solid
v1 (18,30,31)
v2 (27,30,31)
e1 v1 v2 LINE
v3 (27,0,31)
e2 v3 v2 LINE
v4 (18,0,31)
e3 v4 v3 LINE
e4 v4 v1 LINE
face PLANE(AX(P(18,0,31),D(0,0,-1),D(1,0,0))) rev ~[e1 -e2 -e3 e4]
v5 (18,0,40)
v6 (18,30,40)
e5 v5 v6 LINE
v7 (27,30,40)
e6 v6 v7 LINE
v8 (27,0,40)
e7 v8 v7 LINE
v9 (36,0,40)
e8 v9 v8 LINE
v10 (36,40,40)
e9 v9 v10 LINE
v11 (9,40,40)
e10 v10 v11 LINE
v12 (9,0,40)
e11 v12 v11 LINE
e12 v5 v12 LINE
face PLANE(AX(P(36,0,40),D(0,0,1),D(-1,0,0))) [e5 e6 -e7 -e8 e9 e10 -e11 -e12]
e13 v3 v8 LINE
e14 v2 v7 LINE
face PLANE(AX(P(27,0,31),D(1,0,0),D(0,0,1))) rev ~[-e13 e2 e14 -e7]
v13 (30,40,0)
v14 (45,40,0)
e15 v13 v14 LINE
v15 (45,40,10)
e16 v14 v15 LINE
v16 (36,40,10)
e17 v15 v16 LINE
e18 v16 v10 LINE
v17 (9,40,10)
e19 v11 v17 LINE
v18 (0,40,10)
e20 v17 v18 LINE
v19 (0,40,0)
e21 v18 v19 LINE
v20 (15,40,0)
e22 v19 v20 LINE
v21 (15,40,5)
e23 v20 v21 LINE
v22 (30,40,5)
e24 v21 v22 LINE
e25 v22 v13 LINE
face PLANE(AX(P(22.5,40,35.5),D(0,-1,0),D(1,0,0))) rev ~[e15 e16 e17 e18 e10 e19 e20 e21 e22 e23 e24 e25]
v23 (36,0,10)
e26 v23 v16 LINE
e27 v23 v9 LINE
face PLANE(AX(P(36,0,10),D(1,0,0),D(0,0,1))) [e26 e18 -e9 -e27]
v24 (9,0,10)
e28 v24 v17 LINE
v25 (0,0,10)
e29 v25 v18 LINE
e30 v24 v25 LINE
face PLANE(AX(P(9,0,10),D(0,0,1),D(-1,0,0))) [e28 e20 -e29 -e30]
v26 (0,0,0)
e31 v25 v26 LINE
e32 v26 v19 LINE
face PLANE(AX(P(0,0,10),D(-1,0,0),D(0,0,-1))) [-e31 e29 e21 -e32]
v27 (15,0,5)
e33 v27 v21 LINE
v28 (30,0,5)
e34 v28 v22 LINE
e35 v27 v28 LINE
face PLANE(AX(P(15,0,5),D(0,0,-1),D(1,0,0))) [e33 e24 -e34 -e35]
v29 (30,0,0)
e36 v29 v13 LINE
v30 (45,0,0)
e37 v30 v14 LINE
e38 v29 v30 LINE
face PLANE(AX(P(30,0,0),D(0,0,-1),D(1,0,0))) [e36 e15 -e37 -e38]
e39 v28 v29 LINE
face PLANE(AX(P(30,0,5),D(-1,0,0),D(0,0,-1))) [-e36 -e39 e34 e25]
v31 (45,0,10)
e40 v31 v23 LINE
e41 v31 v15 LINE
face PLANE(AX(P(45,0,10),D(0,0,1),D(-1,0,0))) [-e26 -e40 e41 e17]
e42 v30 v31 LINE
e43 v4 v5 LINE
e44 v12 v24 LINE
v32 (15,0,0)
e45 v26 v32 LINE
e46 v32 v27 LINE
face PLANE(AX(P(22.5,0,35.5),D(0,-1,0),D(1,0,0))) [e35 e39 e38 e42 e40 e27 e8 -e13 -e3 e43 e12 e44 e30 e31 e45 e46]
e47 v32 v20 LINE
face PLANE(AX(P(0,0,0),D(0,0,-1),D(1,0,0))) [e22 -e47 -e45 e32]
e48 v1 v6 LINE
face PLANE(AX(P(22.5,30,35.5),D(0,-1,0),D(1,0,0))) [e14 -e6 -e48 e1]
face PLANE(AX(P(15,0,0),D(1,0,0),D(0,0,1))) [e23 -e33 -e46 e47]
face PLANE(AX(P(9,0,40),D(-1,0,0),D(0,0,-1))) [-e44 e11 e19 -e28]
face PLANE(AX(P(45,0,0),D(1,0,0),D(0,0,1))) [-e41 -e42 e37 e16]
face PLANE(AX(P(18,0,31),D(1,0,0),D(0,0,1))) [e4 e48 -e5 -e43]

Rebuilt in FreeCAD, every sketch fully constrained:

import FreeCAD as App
import Part
import Sketcher

V = App.Vector
Q = App.Units.Quantity

doc = App.newDocument("Part")
body = doc.addObject("PartDesign::Body", "Body")

# Sketch on XZ plane
sketch1 = body.newObject("Sketcher::SketchObject", "Sketch")
sketch1.AttachmentSupport = (doc.getObject("XZ_Plane"), [""])
sketch1.MapMode = "FlatFace"
sketch1.addGeometry([
    Part.LineSegment(V(9, 40, 0), V(9, 10, 0)),  # 0
    Part.LineSegment(V(9, 10, 0), V(0, 10, 0)),  # 1
    Part.LineSegment(V(0, 10, 0), V(0, 0, 0)),  # 2
    Part.LineSegment(V(0, 0, 0), V(15, 0, 0)),  # 3
    Part.LineSegment(V(15, 0, 0), V(15, 5, 0)),  # 4
    Part.LineSegment(V(15, 5, 0), V(30, 5, 0)),  # 5
    Part.LineSegment(V(30, 5, 0), V(30, 0, 0)),  # 6
    Part.LineSegment(V(30, 0, 0), V(45, 0, 0)),  # 7
    Part.LineSegment(V(45, 0, 0), V(45, 10, 0)),  # 8
    Part.LineSegment(V(45, 10, 0), V(36, 10, 0)),  # 9
    Part.LineSegment(V(36, 10, 0), V(36, 40, 0)),  # 10
    Part.LineSegment(V(36, 40, 0), V(9, 40, 0)),  # 11
], False)
sketch1.addConstraint([
    Sketcher.Constraint("Coincident", 0, 2, 1, 1),
    Sketcher.Constraint("Coincident", 1, 2, 2, 1),
    Sketcher.Constraint("Coincident", 2, 2, 3, 1),
    Sketcher.Constraint("Coincident", 3, 2, 4, 1),
    Sketcher.Constraint("Coincident", 4, 2, 5, 1),
    Sketcher.Constraint("Coincident", 5, 2, 6, 1),
    Sketcher.Constraint("Coincident", 6, 2, 7, 1),
    Sketcher.Constraint("Coincident", 7, 2, 8, 1),
    Sketcher.Constraint("Coincident", 8, 2, 9, 1),
    Sketcher.Constraint("Coincident", 9, 2, 10, 1),
    Sketcher.Constraint("Coincident", 10, 2, 11, 1),
    Sketcher.Constraint("Coincident", 11, 2, 0, 1),
    Sketcher.Constraint("Vertical", 0),
    Sketcher.Constraint("Horizontal", 1),
    Sketcher.Constraint("Vertical", 2),
    Sketcher.Constraint("Horizontal", 3),
    Sketcher.Constraint("Vertical", 4),
    Sketcher.Constraint("Horizontal", 5),
    Sketcher.Constraint("Vertical", 6),
    Sketcher.Constraint("Horizontal", 7),
    Sketcher.Constraint("Vertical", 8),
    Sketcher.Constraint("Horizontal", 9),
    Sketcher.Constraint("Vertical", 10),
    Sketcher.Constraint("Horizontal", 11),
    Sketcher.Constraint("Coincident", 2, 2, -1, 1),
    Sketcher.Constraint("PointOnObject", 6, 2, -1),
    Sketcher.Constraint("Horizontal", 1, 2, 8, 2),
    Sketcher.Constraint("Equal", 3, 5),
    Sketcher.Constraint("Equal", 5, 7),
    Sketcher.Constraint("Equal", 1, 9),
    Sketcher.Constraint("DistanceX", 1, 2, 1, 1, Q("9 mm")),
    Sketcher.Constraint("DistanceX", 3, 1, 3, 2, Q("15 mm")),
    Sketcher.Constraint("DistanceY", 0, 2, 0, 1, Q("30 mm")),
    Sketcher.Constraint("DistanceY", 2, 2, 2, 1, Q("10 mm")),
    Sketcher.Constraint("DistanceY", 4, 1, 4, 2, Q("5 mm")),
])
pad1 = body.newObject("PartDesign::Pad", "Pad")
pad1.Profile = sketch1
pad1.Length = 40
pad1.Reversed = True

# Sketch on XZ plane
sketch2 = body.newObject("Sketcher::SketchObject", "Sketch001")
sketch2.AttachmentSupport = (doc.getObject("XZ_Plane"), [""])
sketch2.MapMode = "FlatFace"
sketch2.addGeometry([
    Part.LineSegment(V(18, 40, 0), V(18, 31, 0)),
    Part.LineSegment(V(18, 31, 0), V(27, 31, 0)),
    Part.LineSegment(V(27, 31, 0), V(27, 40, 0)),
    Part.LineSegment(V(27, 40, 0), V(18, 40, 0)),
], False)
sketch2.addConstraint([
    Sketcher.Constraint("Coincident", 0, 2, 1, 1),
    Sketcher.Constraint("Coincident", 1, 2, 2, 1),
    Sketcher.Constraint("Coincident", 2, 2, 3, 1),
    Sketcher.Constraint("Coincident", 3, 2, 0, 1),
    Sketcher.Constraint("Vertical", 0),
    Sketcher.Constraint("Horizontal", 1),
    Sketcher.Constraint("Vertical", 2),
    Sketcher.Constraint("Horizontal", 3),
    Sketcher.Constraint("Equal", 3, 0),
    Sketcher.Constraint("DistanceX", 1, 1, 1, 2, Q("9 mm")),
    Sketcher.Constraint("DistanceX", -1, 1, 0, 2, Q("18 mm")),
    Sketcher.Constraint("DistanceY", -1, 1, 0, 2, Q("31 mm")),
])
pocket1 = body.newObject("PartDesign::Pocket", "Pocket")
pocket1.Profile = sketch2
pocket1.Length = 30

doc.recompute()
